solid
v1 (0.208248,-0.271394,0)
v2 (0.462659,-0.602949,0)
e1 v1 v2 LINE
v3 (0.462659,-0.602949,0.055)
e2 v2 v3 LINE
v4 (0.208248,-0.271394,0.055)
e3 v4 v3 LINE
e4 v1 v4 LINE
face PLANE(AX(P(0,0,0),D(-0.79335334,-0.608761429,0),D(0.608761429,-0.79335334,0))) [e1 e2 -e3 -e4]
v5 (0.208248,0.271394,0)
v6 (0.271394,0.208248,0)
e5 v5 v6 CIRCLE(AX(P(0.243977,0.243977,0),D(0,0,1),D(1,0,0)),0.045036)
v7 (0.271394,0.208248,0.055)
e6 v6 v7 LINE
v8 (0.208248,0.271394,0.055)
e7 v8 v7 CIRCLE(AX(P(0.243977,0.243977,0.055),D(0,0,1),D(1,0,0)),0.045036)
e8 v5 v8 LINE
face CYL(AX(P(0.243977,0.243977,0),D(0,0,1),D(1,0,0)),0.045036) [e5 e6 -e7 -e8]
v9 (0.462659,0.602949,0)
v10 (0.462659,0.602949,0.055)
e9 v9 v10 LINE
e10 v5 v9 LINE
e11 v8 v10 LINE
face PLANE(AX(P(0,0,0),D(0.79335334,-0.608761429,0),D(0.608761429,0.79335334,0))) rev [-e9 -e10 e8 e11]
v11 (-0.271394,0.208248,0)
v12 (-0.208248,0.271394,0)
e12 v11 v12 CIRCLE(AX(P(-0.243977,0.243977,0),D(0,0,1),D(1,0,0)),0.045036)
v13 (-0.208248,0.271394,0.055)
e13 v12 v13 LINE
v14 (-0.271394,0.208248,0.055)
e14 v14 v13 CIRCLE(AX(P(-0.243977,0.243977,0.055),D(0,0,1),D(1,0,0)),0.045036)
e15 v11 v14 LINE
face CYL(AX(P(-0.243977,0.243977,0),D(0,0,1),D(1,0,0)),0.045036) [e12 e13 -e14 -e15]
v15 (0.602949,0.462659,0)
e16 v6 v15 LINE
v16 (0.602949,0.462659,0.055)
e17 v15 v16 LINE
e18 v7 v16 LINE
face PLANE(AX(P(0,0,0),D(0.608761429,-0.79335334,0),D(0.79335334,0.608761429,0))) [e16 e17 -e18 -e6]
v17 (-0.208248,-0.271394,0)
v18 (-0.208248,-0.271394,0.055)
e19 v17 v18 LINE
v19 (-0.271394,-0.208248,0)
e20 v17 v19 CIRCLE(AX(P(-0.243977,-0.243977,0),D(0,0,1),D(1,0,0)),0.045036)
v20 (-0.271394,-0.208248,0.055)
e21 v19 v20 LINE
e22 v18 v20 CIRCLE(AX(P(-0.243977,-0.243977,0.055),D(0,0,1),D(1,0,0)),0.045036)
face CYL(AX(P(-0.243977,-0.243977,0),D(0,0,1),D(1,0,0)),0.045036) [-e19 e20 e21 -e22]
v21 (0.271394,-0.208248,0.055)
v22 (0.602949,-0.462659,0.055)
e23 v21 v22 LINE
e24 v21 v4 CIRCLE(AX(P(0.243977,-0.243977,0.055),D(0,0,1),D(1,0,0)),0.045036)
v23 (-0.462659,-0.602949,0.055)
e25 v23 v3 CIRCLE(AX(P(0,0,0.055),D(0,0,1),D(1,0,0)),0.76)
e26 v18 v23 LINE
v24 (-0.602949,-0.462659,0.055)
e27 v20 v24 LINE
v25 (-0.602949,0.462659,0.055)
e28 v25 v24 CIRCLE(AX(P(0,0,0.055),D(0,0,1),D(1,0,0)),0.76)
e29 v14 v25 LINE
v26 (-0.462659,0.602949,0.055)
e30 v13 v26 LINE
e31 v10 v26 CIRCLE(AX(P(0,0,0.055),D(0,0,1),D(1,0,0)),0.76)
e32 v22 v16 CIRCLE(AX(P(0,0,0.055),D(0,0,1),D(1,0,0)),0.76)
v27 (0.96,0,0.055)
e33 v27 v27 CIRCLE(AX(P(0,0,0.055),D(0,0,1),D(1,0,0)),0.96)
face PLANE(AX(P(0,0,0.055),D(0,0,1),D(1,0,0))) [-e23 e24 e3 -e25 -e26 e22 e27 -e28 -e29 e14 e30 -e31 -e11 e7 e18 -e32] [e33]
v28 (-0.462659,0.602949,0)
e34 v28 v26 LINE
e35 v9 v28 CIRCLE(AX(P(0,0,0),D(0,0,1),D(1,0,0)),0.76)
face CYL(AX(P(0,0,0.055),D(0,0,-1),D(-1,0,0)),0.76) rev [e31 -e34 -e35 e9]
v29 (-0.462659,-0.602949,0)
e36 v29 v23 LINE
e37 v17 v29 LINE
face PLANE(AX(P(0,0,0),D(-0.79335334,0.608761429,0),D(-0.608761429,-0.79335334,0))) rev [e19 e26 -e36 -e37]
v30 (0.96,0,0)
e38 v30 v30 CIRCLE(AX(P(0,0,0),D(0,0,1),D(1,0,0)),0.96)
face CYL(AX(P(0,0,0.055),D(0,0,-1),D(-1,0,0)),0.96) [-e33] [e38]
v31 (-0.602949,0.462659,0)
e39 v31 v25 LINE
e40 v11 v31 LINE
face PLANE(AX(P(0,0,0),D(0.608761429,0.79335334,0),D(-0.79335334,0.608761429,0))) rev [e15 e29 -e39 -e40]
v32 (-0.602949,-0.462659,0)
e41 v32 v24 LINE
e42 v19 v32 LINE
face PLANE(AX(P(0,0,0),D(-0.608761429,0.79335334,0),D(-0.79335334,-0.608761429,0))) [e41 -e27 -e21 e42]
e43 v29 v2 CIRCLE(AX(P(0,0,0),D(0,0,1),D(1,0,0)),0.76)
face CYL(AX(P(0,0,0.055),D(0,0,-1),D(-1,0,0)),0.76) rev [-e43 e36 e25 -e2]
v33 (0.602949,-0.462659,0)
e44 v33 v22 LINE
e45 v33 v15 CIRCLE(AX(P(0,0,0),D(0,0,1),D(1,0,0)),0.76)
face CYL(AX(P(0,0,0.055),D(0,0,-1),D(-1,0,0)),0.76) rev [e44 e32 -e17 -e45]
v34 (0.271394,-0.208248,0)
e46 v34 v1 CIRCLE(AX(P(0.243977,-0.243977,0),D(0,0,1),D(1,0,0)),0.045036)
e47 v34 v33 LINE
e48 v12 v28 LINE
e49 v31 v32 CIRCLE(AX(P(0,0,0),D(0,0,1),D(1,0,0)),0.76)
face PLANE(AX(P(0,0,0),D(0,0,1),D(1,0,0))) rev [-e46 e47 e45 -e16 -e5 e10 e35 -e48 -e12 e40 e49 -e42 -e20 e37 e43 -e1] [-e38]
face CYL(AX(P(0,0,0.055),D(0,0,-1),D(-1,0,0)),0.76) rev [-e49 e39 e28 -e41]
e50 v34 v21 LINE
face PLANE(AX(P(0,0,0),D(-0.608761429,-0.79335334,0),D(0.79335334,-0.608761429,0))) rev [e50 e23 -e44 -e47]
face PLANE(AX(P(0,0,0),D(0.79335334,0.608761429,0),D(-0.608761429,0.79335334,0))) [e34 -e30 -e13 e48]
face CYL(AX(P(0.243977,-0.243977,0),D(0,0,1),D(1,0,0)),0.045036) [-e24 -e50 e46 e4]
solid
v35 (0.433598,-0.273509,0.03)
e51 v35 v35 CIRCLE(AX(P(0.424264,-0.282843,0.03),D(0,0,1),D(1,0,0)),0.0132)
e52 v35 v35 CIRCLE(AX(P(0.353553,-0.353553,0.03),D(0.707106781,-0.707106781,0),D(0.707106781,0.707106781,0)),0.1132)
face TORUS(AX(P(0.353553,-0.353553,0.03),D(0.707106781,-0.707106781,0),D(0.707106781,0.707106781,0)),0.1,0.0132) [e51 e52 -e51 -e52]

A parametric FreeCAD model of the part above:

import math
import FreeCAD as App
import Part
import Sketcher
Q = App.Units.Quantity

doc = App.newDocument("Part")
params = doc.addObject("Spreadsheet::Sheet", "Params")
for row, (alias, value) in enumerate([
    ("sketch1_diameter", "1.92 mm"),
    ("sketch1_diameter2", "1.52 mm"),
    ("pad1_length", "0.055 mm"),
    ("sketch2_radius", "0.76 mm"),
    ("pad2_length", "0.055 mm"),
    ("sketch4_diameter", "0.2 mm"),
], start=1):
    params.set(f"A{row}", alias)
    params.set(f"B{row}", "=" + value)
    params.setAlias(f"B{row}", alias)

body = doc.addObject("PartDesign::Body", "Body")

sketch1 = body.newObject("Sketcher::SketchObject", "Sketch")
sketch1.AttachmentSupport = (doc.getObject("XY_Plane"), [""])
sketch1.MapMode = "FlatFace"
sketch1.addGeometry(Part.Circle(App.Vector(0, 0, 0), App.Vector(0, 0, 1), 0.96), False)
sketch1.addGeometry(Part.Circle(App.Vector(0, 0, 0), App.Vector(0, 0, 1), 0.76), False)
sketch1.addConstraint(Sketcher.Constraint("Coincident", 0, 3, -1, 1))
sketch1.addConstraint(Sketcher.Constraint("Coincident", 1, 3, -1, 1))
sketch1.addConstraint(Sketcher.Constraint("Diameter", 0, 1.92))
sketch1.addConstraint(Sketcher.Constraint("Diameter", 1, 1.52))
sketch1.setExpression("Constraints[2]", "Params.sketch1_diameter")
sketch1.setExpression("Constraints[3]", "Params.sketch1_diameter2")
pad1 = body.newObject("PartDesign::Pad", "Pad")
pad1.Profile = sketch1
pad1.setExpression("Length", "Params.pad1_length")

sketch2 = body.newObject("Sketcher::SketchObject", "Sketch001")
sketch2.AttachmentSupport = (doc.getObject("XY_Plane"), [""])
sketch2.MapMode = "FlatFace"
sketch2.addGeometry(Part.LineSegment(App.Vector(-0.208248, 0.271394, 0), App.Vector(-0.462659, 0.602949, 0)), False)
sketch2.addGeometry(Part.ArcOfCircle(Part.Circle(App.Vector(0, 0, 0), App.Vector(0, 0, 1), 0.76), math.radians(127.5), math.radians(142.5)), False)
sketch2.addGeometry(Part.LineSegment(App.Vector(-0.602949, 0.462659, 0), App.Vector(-0.271394, 0.208248, 0)), False)
sketch2.addGeometry(Part.ArcOfCircle(Part.Circle(App.Vector(-0.243977, 0.243977, 0), App.Vector(0, 0, 1), 0.045036), math.radians(-127.5), math.radians(-45.000001)), False)
sketch2.addGeometry(Part.ArcOfCircle(Part.Circle(App.Vector(-0.243977, 0.243977, 0), App.Vector(0, 0, 1), 0.045036), math.radians(-44.999999), math.radians(37.5)), False)
sketch2.addGeometry(Part.ArcOfCircle(Part.Circle(App.Vector(0.243977, 0.243977, 0), App.Vector(0, 0, 1), 0.045036), math.radians(142.5), math.radians(224.999999)), False)
sketch2.addGeometry(Part.ArcOfCircle(Part.Circle(App.Vector(0.243977, 0.243977, 0), App.Vector(0, 0, 1), 0.045036), math.radians(-134.999999), math.radians(-52.5)), False)
sketch2.addGeometry(Part.LineSegment(App.Vector(0.271394, 0.208248, 0), App.Vector(0.602949, 0.462659, 0)), False)
sketch2.addGeometry(Part.ArcOfCircle(Part.Circle(App.Vector(0, 0, 0), App.Vector(0, 0, 1), 0.76), math.radians(37.5), math.radians(52.5)), False)
sketch2.addGeometry(Part.LineSegment(App.Vector(0.462659, 0.602949, 0), App.Vector(0.208248, 0.271394, 0)), False)
sketch2.addGeometry(Part.ArcOfCircle(Part.Circle(App.Vector(0.243977, -0.243977, 0), App.Vector(0, 0, 1), 0.045036), math.radians(52.5), math.radians(134.999999)), False)
sketch2.addGeometry(Part.ArcOfCircle(Part.Circle(App.Vector(0.243977, -0.243977, 0), App.Vector(0, 0, 1), 0.045036), math.radians(135.000001), math.radians(217.5)), False)
sketch2.addGeometry(Part.LineSegment(App.Vector(0.208248, -0.271394, 0), App.Vector(0.462659, -0.602949, 0)), False)
sketch2.addGeometry(Part.ArcOfCircle(Part.Circle(App.Vector(0, 0, 0), App.Vector(0, 0, 1), 0.76), math.radians(-52.5), math.radians(-37.5)), False)
sketch2.addGeometry(Part.LineSegment(App.Vector(0.602949, -0.462659, 0), App.Vector(0.271394, -0.208248, 0)), False)
sketch2.addGeometry(Part.ArcOfCircle(Part.Circle(App.Vector(-0.243977, -0.243977, 0), App.Vector(0, 0, 1), 0.045036), math.radians(-37.5), math.radians(44.999999)), False)
sketch2.addGeometry(Part.ArcOfCircle(Part.Circle(App.Vector(-0.243977, -0.243977, 0), App.Vector(0, 0, 1), 0.045036), math.radians(45.000001), math.radians(127.5)), False)
sketch2.addGeometry(Part.LineSegment(App.Vector(-0.271394, -0.208248, 0), App.Vector(-0.602949, -0.462659, 0)), False)
sketch2.addGeometry(Part.ArcOfCircle(Part.Circle(App.Vector(0, 0, 0), App.Vector(0, 0, 1), 0.76), math.radians(-142.5), math.radians(-127.5)), False)
sketch2.addGeometry(Part.LineSegment(App.Vector(-0.462659, -0.602949, 0), App.Vector(-0.208248, -0.271394, 0)), False)
sketch2.addConstraint(Sketcher.Constraint("Coincident", 0, 2, 1, 1))
sketch2.addConstraint(Sketcher.Constraint("Coincident", 1, 2, 2, 1))
sketch2.addConstraint(Sketcher.Constraint("Tangent", 2, 2, 3, 1))
sketch2.addConstraint(Sketcher.Constraint("Tangent", 3, 2, 4, 1))
sketch2.addConstraint(Sketcher.Constraint("Tangent", 4, 2, 0, 1))
sketch2.addConstraint(Sketcher.Constraint("Tangent", 5, 2, 6, 1))
sketch2.addConstraint(Sketcher.Constraint("Tangent", 6, 2, 7, 1))
sketch2.addConstraint(Sketcher.Constraint("Coincident", 7, 2, 8, 1))
sketch2.addConstraint(Sketcher.Constraint("Coincident", 8, 2, 9, 1))
sketch2.addConstraint(Sketcher.Constraint("Tangent", 9, 2, 5, 1))
sketch2.addConstraint(Sketcher.Constraint("Tangent", 10, 2, 11, 1))
sketch2.addConstraint(Sketcher.Constraint("Tangent", 11, 2, 12, 1))
sketch2.addConstraint(Sketcher.Constraint("Coincident", 12, 2, 13, 1))
sketch2.addConstraint(Sketcher.Constraint("Coincident", 13, 2, 14, 1))
sketch2.addConstraint(Sketcher.Constraint("Tangent", 14, 2, 10, 1))
sketch2.addConstraint(Sketcher.Constraint("Tangent", 15, 2, 16, 1))
sketch2.addConstraint(Sketcher.Constraint("Tangent", 16, 2, 17, 1))
sketch2.addConstraint(Sketcher.Constraint("Coincident", 17, 2, 18, 1))
sketch2.addConstraint(Sketcher.Constraint("Coincident", 18, 2, 19, 1))
sketch2.addConstraint(Sketcher.Constraint("Tangent", 19, 2, 15, 1))
sketch2.addConstraint(Sketcher.Constraint("Coincident", 1, 3, -1, 1))
sketch2.addConstraint(Sketcher.Constraint("Coincident", 8, 3, -1, 1))
sketch2.addConstraint(Sketcher.Constraint("Coincident", 13, 3, -1, 1))
sketch2.addConstraint(Sketcher.Constraint("Coincident", 18, 3, -1, 1))
sketch2.addConstraint(Sketcher.Constraint("Equal", 3, 4))
sketch2.addConstraint(Sketcher.Constraint("Equal", 4, 5))
sketch2.addConstraint(Sketcher.Constraint("Equal", 5, 6))
sketch2.addConstraint(Sketcher.Constraint("Equal", 1, 8))
sketch2.addConstraint(Sketcher.Constraint("Equal", 6, 10))
sketch2.addConstraint(Sketcher.Constraint("Equal", 10, 11))
sketch2.addConstraint(Sketcher.Constraint("Equal", 8, 13))
sketch2.addConstraint(Sketcher.Constraint("Equal", 11, 15))
sketch2.addConstraint(Sketcher.Constraint("Equal", 15, 16))
sketch2.addConstraint(Sketcher.Constraint("Equal", 13, 18))
sketch2.addConstraint(Sketcher.Constraint("Symmetric", 3, 3, 10, 3, -1, 1))
sketch2.addConstraint(Sketcher.Constraint("Symmetric", 5, 3, 15, 3, -1, 1))
sketch2.addConstraint(Sketcher.Constraint("Symmetric", 3, 3, 5, 3, -2))
sketch2.addConstraint(Sketcher.Constraint("Perpendicular", 0, 7))
sketch2.addConstraint(Sketcher.Constraint("Perpendicular", 2, 9))
sketch2.addConstraint(Sketcher.Constraint("Perpendicular", 7, 12))
sketch2.addConstraint(Sketcher.Constraint("Perpendicular", 9, 14))
sketch2.addConstraint(Sketcher.Constraint("Perpendicular", 12, 17))
sketch2.addConstraint(Sketcher.Constraint("Perpendicular", 14, 19))
sketch2.addConstraint(Sketcher.Constraint("Horizontal", 3, 2, 5, 2))
sketch2.addConstraint(Sketcher.Constraint("Horizontal", 2, 2, 6, 2))
sketch2.addConstraint(Sketcher.Constraint("Horizontal", 10, 2, 15, 2))
sketch2.addConstraint(Sketcher.Constraint("Vertical", 5, 2, 10, 2))
sketch2.addConstraint(Sketcher.Constraint("Equal", 0, 2))
sketch2.addConstraint(Sketcher.Constraint("Radius", 1, 0.76))
sketch2.addConstraint(Sketcher.Constraint("Angle", 0, Q("127.5 deg")))
sketch2.addConstraint(Sketcher.Constraint("Radius", 3, 0.045036))
sketch2.addConstraint(Sketcher.Constraint("DistanceY", 6, 2, 8, 2, 0.394701))
sketch2.addConstraint(Sketcher.Constraint("DistanceX", 2, 2, 3, 2, 0.059262))
sketch2.setExpression("Constraints[48]", "Params.sketch2_radius")
pad2 = body.newObject("PartDesign::Pad", "Pad001")
pad2.Profile = sketch2
pad2.setExpression("Length", "Params.pad2_length")
body2 = doc.addObject("PartDesign::Body", "Body001")

sketch3 = body2.newObject("Sketcher::SketchObject", "Sketch002")
sketch3.AttachmentSupport = (doc.getObject("XY_Plane001"), [""])
sketch3.MapMode = "FlatFace"
sketch3.AttachmentOffset = App.Placement(App.Vector(0, 0, 0.03), App.Rotation())
sketch3.addGeometry(Part.Circle(App.Vector(0.424264, -0.282843, 0), App.Vector(0, 0, 1), 0.0132), False)
sketch3.addConstraint(Sketcher.Constraint("Diameter", 0, 0.0264))
sketch3.addConstraint(Sketcher.Constraint("DistanceX", -1, 1, 0, 3, 0.424264))
sketch3.addConstraint(Sketcher.Constraint("DistanceY", 0, 3, -1, 1, 0.282843))

sketch4 = body2.newObject("Sketcher::SketchObject", "Sketch003")
sketch4.Placement = App.Placement(App.Vector(0.353553, -0.353553, 0), App.Rotation(App.Vector(0.707106781, 0.707106781, 0), App.Vector(0, 0, 0.999999999), App.Vector(0.707106781, -0.707106781, 0), "ZXY"))
sketch4.addGeometry(Part.Circle(App.Vector(0, 0.03, 0), App.Vector(0, 0, 1), 0.1), False)
sketch4.addConstraint(Sketcher.Constraint("PointOnObject", 0, 3, -2))
sketch4.addConstraint(Sketcher.Constraint("Diameter", 0, 0.2))
sketch4.addConstraint(Sketcher.Constraint("DistanceY", -1, 1, 0, 3, 0.03))
sketch4.setExpression("Constraints[1]", "Params.sketch4_diameter")
doc.recompute()

additivepipe = body2.newObject("PartDesign::AdditivePipe", "AdditivePipe")
additivepipe.Profile = sketch3
additivepipe.Spine = (sketch4, ["Edge1"])

doc.recompute()
